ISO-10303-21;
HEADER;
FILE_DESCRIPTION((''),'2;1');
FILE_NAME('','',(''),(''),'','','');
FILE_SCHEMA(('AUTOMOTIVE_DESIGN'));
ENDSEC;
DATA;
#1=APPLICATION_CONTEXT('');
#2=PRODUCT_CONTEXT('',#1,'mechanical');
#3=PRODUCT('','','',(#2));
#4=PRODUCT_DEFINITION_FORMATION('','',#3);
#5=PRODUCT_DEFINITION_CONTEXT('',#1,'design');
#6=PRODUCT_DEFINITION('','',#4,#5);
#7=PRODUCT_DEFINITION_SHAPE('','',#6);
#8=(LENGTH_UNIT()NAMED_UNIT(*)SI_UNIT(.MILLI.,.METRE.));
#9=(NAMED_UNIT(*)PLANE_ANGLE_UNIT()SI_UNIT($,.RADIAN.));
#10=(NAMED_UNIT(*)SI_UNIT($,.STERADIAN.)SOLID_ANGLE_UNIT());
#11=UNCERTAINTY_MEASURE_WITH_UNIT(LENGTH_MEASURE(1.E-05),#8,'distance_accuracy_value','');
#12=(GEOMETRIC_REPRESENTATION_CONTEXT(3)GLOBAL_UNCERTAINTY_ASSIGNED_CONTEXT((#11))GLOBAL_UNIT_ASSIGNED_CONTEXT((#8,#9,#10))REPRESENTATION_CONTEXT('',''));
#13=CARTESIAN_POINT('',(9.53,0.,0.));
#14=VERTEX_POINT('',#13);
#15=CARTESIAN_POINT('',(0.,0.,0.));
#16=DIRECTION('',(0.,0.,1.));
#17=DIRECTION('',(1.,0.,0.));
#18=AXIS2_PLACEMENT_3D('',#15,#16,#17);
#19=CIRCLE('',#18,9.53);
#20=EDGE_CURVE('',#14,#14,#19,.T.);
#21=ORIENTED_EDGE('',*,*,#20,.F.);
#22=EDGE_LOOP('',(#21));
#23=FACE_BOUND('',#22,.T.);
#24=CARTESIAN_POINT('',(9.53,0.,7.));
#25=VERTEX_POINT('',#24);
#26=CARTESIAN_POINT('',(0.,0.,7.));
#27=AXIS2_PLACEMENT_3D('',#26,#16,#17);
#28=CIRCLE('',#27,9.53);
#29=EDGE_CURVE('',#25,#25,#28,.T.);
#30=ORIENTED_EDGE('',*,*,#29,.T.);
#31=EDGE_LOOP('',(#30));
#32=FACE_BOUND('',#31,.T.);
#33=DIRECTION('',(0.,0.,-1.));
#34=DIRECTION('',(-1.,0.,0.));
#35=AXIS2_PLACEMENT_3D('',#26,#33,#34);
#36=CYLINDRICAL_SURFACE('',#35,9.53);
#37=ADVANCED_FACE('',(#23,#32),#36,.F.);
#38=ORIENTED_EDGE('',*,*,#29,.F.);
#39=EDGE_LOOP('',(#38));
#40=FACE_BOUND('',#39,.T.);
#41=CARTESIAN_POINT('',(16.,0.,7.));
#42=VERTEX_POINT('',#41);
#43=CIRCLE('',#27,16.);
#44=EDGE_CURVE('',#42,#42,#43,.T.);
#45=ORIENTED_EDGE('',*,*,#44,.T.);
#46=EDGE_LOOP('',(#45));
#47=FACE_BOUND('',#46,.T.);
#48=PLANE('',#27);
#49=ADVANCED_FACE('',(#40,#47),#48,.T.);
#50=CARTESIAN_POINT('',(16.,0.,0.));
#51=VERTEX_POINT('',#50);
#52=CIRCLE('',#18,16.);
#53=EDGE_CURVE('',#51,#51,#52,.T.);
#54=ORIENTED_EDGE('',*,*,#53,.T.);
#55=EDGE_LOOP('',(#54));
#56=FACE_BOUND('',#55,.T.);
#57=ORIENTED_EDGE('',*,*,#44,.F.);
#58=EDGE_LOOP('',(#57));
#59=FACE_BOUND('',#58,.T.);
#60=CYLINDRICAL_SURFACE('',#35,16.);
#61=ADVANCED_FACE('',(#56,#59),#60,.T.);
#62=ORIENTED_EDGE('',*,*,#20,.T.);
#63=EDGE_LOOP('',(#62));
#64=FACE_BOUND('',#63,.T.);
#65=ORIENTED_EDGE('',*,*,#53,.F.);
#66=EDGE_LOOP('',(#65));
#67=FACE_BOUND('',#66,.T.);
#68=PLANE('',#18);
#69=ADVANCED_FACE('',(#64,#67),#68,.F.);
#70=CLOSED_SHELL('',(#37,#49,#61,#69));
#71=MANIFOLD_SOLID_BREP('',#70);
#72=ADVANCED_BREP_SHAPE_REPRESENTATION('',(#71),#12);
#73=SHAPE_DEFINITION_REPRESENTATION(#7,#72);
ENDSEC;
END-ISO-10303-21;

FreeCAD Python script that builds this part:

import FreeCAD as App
import Part
import Sketcher

V = App.Vector
Q = App.Units.Quantity

doc = App.newDocument("Part")
body = doc.addObject("PartDesign::Body", "Body")

# Sketch on XY plane
sketch1 = doc.addObject("Sketcher::SketchObject", "Sketch")
body.addObject(sketch1)
sketch1.AttachmentSupport = (doc.XY_Plane, [""])
sketch1.MapMode = "FlatFace"
sketch1.addGeometry(Part.Circle(V(0, 0, 0), V(0, 0, 1), 16), False)
sketch1.addGeometry(Part.Circle(V(0, 0, 0), V(0, 0, 1), 10), False)
sketch1.addConstraint(Sketcher.Constraint("Coincident", 0, 3, -1, 1))
sketch1.addConstraint(Sketcher.Constraint("Coincident", 1, 3, -1, 1))
sketch1.addConstraint(Sketcher.Constraint("Diameter", 0, Q("32 mm")))
sketch1.addConstraint(Sketcher.Constraint("Diameter", 1, Q("19.06 mm")))
pad1 = doc.addObject("PartDesign::Pad", "Pad")
body.addObject(pad1)
pad1.Profile = sketch1
pad1.Length = 7

doc.recompute()
